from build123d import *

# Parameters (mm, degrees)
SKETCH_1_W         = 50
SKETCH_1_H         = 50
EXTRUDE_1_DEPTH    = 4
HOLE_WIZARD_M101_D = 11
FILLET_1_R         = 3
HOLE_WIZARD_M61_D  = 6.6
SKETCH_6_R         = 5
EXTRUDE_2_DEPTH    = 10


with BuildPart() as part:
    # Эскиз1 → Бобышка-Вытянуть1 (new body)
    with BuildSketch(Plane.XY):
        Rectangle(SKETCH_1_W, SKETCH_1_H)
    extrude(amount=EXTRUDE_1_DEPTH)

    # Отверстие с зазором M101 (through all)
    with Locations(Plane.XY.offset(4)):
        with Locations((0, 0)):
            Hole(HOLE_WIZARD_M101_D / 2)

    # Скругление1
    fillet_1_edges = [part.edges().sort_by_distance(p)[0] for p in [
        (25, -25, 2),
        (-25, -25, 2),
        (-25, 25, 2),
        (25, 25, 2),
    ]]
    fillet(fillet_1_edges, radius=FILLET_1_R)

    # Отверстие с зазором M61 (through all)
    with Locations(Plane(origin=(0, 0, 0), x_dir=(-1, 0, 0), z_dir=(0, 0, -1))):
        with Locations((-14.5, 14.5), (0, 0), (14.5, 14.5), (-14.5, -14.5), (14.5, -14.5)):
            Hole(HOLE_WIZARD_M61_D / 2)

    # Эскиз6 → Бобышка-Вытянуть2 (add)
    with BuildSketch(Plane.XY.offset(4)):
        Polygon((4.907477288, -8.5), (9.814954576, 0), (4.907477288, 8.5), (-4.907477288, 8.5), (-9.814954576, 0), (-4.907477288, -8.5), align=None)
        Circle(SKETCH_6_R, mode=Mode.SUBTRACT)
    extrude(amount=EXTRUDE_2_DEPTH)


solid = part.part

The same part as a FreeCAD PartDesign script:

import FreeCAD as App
import Part
import Sketcher
from FreeCAD import Vector
Q = App.Units.Quantity


def edges_at(feature, points):
    """Names of the edges that pass closest to the given points."""
    edges = feature.Shape.Edges
    near = lambda p: min(range(len(edges)), key=lambda i: edges[i].distToShape(Part.Vertex(*p))[0])
    return sorted({f"Edge{near(p) + 1}" for p in points})

doc = App.newDocument("Part")
params = doc.addObject("Spreadsheet::Sheet", "Params")
for row, (alias, value) in enumerate([
    ("sketch1_width", "50 mm"),
    ("pad1_length", "4 mm"),
    ("sketch2_diameter", "11 mm"),
    ("hole_diameter", "11 mm"),
    ("fillet_radius", "3 mm"),
    ("sketch3_diameter", "6.6 mm"),
    ("hole2_diameter", "6.6 mm"),
    ("sketch4_diameter", "10 mm"),
    ("pad2_length", "10 mm"),
], start=1):
    params.set(f"A{row}", alias)
    params.set(f"B{row}", "=" + value)
    params.setAlias(f"B{row}", alias)

body = doc.addObject("PartDesign::Body", "Body")

sketch1 = doc.addObject("Sketcher::SketchObject", "Sketch")
body.addObject(sketch1)
sketch1.AttachmentSupport = (doc.XY_Plane, [""])
sketch1.MapMode = "FlatFace"
sketch1.addGeometry([
    Part.LineSegment(Vector(-25, 25, 0), Vector(-25, -25, 0)),
    Part.LineSegment(Vector(-25, -25, 0), Vector(25, -25, 0)),
    Part.LineSegment(Vector(25, -25, 0), Vector(25, 25, 0)),
    Part.LineSegment(Vector(25, 25, 0), Vector(-25, 25, 0)),
], False)
sketch1.addConstraint([
    Sketcher.Constraint("Coincident", 0, 2, 1, 1),
    Sketcher.Constraint("Coincident", 1, 2, 2, 1),
    Sketcher.Constraint("Coincident", 2, 2, 3, 1),
    Sketcher.Constraint("Coincident", 3, 2, 0, 1),
    Sketcher.Constraint("Vertical", 0),
    Sketcher.Constraint("Horizontal", 1),
    Sketcher.Constraint("Vertical", 2),
    Sketcher.Constraint("Horizontal", 3),
    Sketcher.Constraint("Symmetric", 0, 2, 2, 2, -1, 1),
    Sketcher.Constraint("Equal", 3, 0),
    Sketcher.Constraint("DistanceX", 1, 1, 1, 2, 50.0),
])
sketch1.setExpression("Constraints[10]", "Params.sketch1_width")
pad1 = doc.addObject("PartDesign::Pad", "Pad")
body.addObject(pad1)
pad1.Profile = sketch1
pad1.setExpression("Length", "Params.pad1_length")

sketch2 = doc.addObject("Sketcher::SketchObject", "Sketch001")
body.addObject(sketch2)
sketch2.AttachmentSupport = (doc.XY_Plane, [""])
sketch2.MapMode = "FlatFace"
sketch2.AttachmentOffset = App.Placement(Vector(0, 0, 4), App.Rotation())
sketch2.addGeometry(Part.Circle(Vector(0, 0, 0), Vector(0, 0, 1), 6), False)
sketch2.addConstraint([
    Sketcher.Constraint("Coincident", 0, 3, -1, 1),
    Sketcher.Constraint("Diameter", 0, 11.0),
])
sketch2.setExpression("Constraints[1]", "Params.sketch2_diameter")
doc.recompute()
hole = doc.addObject("PartDesign::Hole", "Hole")
body.addObject(hole)
hole.Profile = sketch2
hole.ThreadType = "None"
hole.setExpression("Diameter", "Params.hole_diameter")
hole.DepthType = "ThroughAll"
doc.recompute()

fillet = doc.addObject("PartDesign::Fillet", "Fillet")
body.addObject(fillet)
fillet.Base = (hole, edges_at(hole, [
    (25, -25, 2),
    (-25, -25, 2),
    (-25, 25, 2),
    (25, 25, 2),
]))
fillet.setExpression("Radius", "Params.fillet_radius")

sketch3 = doc.addObject("Sketcher::SketchObject", "Sketch002")
body.addObject(sketch3)
sketch3.AttachmentSupport = (doc.XY_Plane, [""])
sketch3.MapMode = "FlatFace"
sketch3.addGeometry([
    Part.Circle(Vector(14.5, 14.5, 0), Vector(0, 0, 1), 3.3),
    Part.Circle(Vector(0, 0, 0), Vector(0, 0, 1), 3.3),
    Part.Circle(Vector(-14.5, 14.5, 0), Vector(0, 0, 1), 3.3),
    Part.Circle(Vector(14.5, -14.5, 0), Vector(0, 0, 1), 3.3),
    Part.Circle(Vector(-14.5, -14.5, 0), Vector(0, 0, 1), 3.3),
], False)
sketch3.addConstraint([
    Sketcher.Constraint("Coincident", 1, 3, -1, 1),
    Sketcher.Constraint("Equal", 0, 1),
    Sketcher.Constraint("Equal", 1, 2),
    Sketcher.Constraint("Equal", 2, 3),
    Sketcher.Constraint("Equal", 3, 4),
    Sketcher.Constraint("Symmetric", 2, 3, 3, 3, -1, 1),
    Sketcher.Constraint("Symmetric", 0, 3, 4, 3, -1, 1),
    Sketcher.Constraint("Symmetric", 0, 3, 2, 3, -2),
    Sketcher.Constraint("Diameter", 0, 6.6),
    Sketcher.Constraint("DistanceX", 2, 3, 0, 3, 29.0),
    Sketcher.Constraint("DistanceY", 3, 3, 0, 3, 29.0),
])
sketch3.setExpression("Constraints[8]", "Params.sketch3_diameter")
doc.recompute()
hole2 = doc.addObject("PartDesign::Hole", "Hole001")
body.addObject(hole2)
hole2.Profile = sketch3
hole2.ThreadType = "None"
hole2.setExpression("Diameter", "Params.hole2_diameter")
hole2.DepthType = "ThroughAll"
hole2.Reversed = True

sketch4 = doc.addObject("Sketcher::SketchObject", "Sketch003")
body.addObject(sketch4)
sketch4.AttachmentSupport = (doc.XY_Plane, [""])
sketch4.MapMode = "FlatFace"
sketch4.AttachmentOffset = App.Placement(Vector(0, 0, 4), App.Rotation())
sketch4.addGeometry([
    Part.LineSegment(Vector(5, -8, 0), Vector(10, 0, 0)),
    Part.LineSegment(Vector(10, 0, 0), Vector(5, 8, 0)),
    Part.LineSegment(Vector(5, 8, 0), Vector(-5, 8, 0)),
    Part.LineSegment(Vector(-5, 8, 0), Vector(-10, 0, 0)),
    Part.LineSegment(Vector(-10, 0, 0), Vector(-5, -8, 0)),
    Part.LineSegment(Vector(-5, -8, 0), Vector(5, -8, 0)),
    Part.Circle(Vector(0, 0, 0), Vector(0, 0, 1), 5),
], False)
sketch4.addConstraint([
    Sketcher.Constraint("Coincident", 0, 2, 1, 1),
    Sketcher.Constraint("Coincident", 1, 2, 2, 1),
    Sketcher.Constraint("Coincident", 2, 2, 3, 1),
    Sketcher.Constraint("Coincident", 3, 2, 4, 1),
    Sketcher.Constraint("Coincident", 4, 2, 5, 1),
    Sketcher.Constraint("Coincident", 5, 2, 0, 1),
    Sketcher.Constraint("Horizontal", 2),
    Sketcher.Constraint("Horizontal", 5),
    Sketcher.Constraint("Coincident", 6, 3, -1, 1),
    Sketcher.Constraint("Symmetric", 0, 2, 3, 2, -1, 1),
    Sketcher.Constraint("Symmetric", 1, 2, 4, 2, -1, 1),
    Sketcher.Constraint("PointOnObject", 0, 2, -1),
    Sketcher.Constraint("Parallel", 0, 3),
    Sketcher.Constraint("Vertical", 2, 2, 4, 2),
    Sketcher.Constraint("Diameter", 6, 10.0),
    Sketcher.Constraint("Angle", 0, Q("60 deg")),
    Sketcher.Constraint("DistanceY", 4, 2, 2, 2, 17.0),
    Sketcher.Constraint("DistanceX", 2, 2, 2, 1, 9.814955),
])
sketch4.setExpression("Constraints[14]", "Params.sketch4_diameter")
pad2 = doc.addObject("PartDesign::Pad", "Pad001")
body.addObject(pad2)
pad2.Profile = sketch4
pad2.setExpression("Length", "Params.pad2_length")

doc.recompute()
